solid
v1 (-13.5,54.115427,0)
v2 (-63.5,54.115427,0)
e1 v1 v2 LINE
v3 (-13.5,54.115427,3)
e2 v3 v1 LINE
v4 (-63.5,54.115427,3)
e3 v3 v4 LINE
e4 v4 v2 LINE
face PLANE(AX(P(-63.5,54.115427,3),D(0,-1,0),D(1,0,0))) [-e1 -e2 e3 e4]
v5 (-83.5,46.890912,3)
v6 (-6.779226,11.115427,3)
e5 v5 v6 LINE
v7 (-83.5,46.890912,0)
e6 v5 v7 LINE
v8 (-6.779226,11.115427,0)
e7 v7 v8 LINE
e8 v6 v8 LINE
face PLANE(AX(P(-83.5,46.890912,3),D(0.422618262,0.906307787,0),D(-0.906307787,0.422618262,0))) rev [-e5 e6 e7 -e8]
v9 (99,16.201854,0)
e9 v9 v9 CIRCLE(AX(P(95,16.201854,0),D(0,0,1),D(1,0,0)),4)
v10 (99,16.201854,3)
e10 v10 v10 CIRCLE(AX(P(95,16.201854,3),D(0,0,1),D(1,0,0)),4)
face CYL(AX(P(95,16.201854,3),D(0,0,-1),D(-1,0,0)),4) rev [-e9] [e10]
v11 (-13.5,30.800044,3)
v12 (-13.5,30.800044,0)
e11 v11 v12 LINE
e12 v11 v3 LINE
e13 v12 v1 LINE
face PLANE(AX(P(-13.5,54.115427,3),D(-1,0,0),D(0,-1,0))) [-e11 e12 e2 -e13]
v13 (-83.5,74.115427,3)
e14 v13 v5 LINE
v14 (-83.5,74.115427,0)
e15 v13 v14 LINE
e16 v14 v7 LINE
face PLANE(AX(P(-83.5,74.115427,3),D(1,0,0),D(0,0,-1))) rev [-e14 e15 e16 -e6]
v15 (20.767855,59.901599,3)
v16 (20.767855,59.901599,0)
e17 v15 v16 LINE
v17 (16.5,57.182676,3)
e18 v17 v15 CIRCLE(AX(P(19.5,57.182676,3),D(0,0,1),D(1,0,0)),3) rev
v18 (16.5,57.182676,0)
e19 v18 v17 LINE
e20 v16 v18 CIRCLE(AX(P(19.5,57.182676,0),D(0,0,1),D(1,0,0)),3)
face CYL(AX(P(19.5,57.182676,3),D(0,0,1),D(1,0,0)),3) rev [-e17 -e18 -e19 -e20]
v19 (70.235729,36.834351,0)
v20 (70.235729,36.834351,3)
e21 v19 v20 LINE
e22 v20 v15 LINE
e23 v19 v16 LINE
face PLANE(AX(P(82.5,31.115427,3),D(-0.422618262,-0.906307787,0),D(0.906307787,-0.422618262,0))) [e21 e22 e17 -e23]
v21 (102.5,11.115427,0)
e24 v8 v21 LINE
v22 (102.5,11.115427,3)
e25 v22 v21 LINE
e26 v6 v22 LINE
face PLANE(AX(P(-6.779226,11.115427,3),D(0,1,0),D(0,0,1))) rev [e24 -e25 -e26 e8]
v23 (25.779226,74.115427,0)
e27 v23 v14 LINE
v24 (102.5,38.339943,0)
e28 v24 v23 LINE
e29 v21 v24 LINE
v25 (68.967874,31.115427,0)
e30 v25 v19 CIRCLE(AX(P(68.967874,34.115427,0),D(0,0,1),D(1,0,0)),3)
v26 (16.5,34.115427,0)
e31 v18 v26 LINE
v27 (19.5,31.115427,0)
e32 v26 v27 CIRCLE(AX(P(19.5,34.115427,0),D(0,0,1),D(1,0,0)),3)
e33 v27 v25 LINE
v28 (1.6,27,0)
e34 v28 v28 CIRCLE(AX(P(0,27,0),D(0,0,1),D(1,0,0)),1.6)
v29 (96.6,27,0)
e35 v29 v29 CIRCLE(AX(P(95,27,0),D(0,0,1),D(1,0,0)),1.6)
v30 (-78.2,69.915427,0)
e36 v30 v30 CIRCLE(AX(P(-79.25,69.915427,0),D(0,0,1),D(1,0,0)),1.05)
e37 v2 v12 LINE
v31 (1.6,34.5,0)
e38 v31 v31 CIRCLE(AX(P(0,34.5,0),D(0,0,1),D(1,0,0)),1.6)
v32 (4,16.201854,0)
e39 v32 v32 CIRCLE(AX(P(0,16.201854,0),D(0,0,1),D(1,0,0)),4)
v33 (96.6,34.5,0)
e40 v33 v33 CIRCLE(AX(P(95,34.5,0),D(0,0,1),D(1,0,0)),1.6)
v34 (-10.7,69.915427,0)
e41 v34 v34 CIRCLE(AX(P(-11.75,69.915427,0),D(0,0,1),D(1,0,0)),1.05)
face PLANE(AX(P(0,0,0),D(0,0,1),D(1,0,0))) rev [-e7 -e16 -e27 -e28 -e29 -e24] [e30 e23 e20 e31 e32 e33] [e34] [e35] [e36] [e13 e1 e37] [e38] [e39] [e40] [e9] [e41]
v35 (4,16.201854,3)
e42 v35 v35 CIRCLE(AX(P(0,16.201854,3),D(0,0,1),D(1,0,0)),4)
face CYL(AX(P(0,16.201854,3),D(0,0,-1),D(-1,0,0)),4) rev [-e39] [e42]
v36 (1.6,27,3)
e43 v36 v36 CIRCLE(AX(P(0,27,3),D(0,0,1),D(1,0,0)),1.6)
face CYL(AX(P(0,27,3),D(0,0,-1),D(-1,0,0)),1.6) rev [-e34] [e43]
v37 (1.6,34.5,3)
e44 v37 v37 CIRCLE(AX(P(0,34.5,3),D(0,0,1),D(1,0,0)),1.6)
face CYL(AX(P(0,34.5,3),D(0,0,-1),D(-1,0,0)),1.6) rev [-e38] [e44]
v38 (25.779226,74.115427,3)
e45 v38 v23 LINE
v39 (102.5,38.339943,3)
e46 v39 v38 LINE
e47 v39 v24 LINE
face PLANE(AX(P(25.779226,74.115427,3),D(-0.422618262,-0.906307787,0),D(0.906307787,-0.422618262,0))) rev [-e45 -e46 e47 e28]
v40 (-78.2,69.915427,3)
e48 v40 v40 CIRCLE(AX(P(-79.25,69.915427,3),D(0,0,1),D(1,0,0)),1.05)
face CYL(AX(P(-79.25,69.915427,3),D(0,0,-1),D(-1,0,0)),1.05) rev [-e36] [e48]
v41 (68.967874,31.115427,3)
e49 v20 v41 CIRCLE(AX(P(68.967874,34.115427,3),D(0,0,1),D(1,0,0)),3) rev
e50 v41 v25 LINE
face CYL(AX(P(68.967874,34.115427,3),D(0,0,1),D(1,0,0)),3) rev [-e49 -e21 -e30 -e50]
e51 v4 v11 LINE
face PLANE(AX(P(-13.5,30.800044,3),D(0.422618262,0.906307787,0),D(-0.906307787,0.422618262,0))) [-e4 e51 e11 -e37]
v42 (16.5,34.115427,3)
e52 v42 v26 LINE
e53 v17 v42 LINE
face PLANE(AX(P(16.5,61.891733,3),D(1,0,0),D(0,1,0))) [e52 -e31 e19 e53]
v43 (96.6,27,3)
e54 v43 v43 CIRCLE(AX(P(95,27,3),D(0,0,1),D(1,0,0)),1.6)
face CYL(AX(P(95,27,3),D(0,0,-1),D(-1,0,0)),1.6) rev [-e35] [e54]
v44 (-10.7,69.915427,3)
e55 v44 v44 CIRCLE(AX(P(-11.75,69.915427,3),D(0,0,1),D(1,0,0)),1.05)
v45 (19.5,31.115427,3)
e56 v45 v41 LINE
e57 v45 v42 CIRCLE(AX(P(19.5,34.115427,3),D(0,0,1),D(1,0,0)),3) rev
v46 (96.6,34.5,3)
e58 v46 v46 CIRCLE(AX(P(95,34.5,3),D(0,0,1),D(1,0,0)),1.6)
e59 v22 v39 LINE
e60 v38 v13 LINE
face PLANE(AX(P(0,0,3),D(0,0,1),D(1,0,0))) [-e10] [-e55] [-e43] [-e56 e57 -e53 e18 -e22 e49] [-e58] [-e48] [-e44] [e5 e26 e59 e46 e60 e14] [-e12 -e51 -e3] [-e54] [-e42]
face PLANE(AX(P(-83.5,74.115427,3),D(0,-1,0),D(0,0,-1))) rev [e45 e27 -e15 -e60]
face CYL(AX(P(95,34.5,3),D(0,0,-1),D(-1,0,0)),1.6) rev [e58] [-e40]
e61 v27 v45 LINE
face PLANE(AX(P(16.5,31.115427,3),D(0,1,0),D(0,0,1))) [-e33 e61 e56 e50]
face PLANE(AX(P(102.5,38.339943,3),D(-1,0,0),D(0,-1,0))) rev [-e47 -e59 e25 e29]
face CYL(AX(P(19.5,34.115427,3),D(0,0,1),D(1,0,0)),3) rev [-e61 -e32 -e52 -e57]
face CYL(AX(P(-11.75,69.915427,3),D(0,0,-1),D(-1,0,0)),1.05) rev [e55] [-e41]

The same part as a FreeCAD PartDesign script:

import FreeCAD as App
import Part
import Sketcher

V = App.Vector
Q = App.Units.Quantity


def edges_at(feature, points):
    """Names of the edges that pass closest to the given points."""
    edges = feature.Shape.Edges
    near = lambda p: min(range(len(edges)), key=lambda i: edges[i].distToShape(Part.Vertex(*p))[0])
    return sorted({f"Edge{near(p) + 1}" for p in points})


def add_polygon(sketch, points):
    """Adds a closed chain of lines whose ends are joined by coincident constraints."""
    first, n = sketch.GeometryCount, len(points)
    for a, b in zip(points, points[1:] + points[:1]):
        sketch.addGeometry(Part.LineSegment(App.Vector(*a, 0), App.Vector(*b, 0)), False)
    for i in range(n):
        sketch.addConstraint(Sketcher.Constraint("Coincident", first + i, 2, first + (i + 1) % n, 1))

doc = App.newDocument("Part")
body = doc.addObject("PartDesign::Body", "Body")

sketch1 = body.newObject("Sketcher::SketchObject", "Sketch")
sketch1.AttachmentSupport = (doc.getObject("XY_Plane"), [""])
sketch1.MapMode = "FlatFace"
add_polygon(sketch1, [(25.8, 74.1), (-83.5, 74.1), (-83.5, 46.9), (-6.8, 11.1), (102.5, 11.1), (102.5, 38.3)])
sketch1.addGeometry(Part.Circle(V(95, 16.2, 0), V(0, 0, 1), 4), False)
sketch1.addGeometry(Part.Circle(V(95, 27, 0), V(0, 0, 1), 1.6), False)
sketch1.addGeometry(Part.Circle(V(95, 34.5, 0), V(0, 0, 1), 1.6), False)
sketch1.addGeometry(Part.Circle(V(0, 16.2, 0), V(0, 0, 1), 4), False)
sketch1.addGeometry(Part.Circle(V(0, 27, 0), V(0, 0, 1), 1.6), False)
sketch1.addGeometry(Part.Circle(V(0, 34.5, 0), V(0, 0, 1), 1.6), False)
add_polygon(sketch1, [(16.5, 61.9), (82.5, 31.1), (16.5, 31.1)])
add_polygon(sketch1, [(-63.5, 54.1), (-13.5, 54.1), (-13.5, 30.8)])
sketch1.addGeometry(Part.Circle(V(-11.8, 69.9, 0), V(0, 0, 1), 1.1), False)
sketch1.addGeometry(Part.Circle(V(-79.2, 69.9, 0), V(0, 0, 1), 1.1), False)
sketch1.addConstraint([
    Sketcher.Constraint("Horizontal", 0),
    Sketcher.Constraint("Vertical", 1),
    Sketcher.Constraint("Horizontal", 3),
    Sketcher.Constraint("Vertical", 4),
    Sketcher.Constraint("Horizontal", 13),
    Sketcher.Constraint("Vertical", 14),
    Sketcher.Constraint("Horizontal", 15),
    Sketcher.Constraint("Vertical", 16),
    Sketcher.Constraint("Equal", 7, 8),
    Sketcher.Constraint("Equal", 6, 9),
    Sketcher.Constraint("Equal", 8, 10),
    Sketcher.Constraint("Equal", 10, 11),
    Sketcher.Constraint("Equal", 18, 19),
    Sketcher.Constraint("PointOnObject", 9, 3, -2),
    Sketcher.Constraint("PointOnObject", 10, 3, -2),
    Sketcher.Constraint("PointOnObject", 11, 3, -2),
    Sketcher.Constraint("Parallel", 2, 5),
    Sketcher.Constraint("Parallel", 5, 12),
    Sketcher.Constraint("Parallel", 12, 17),
    Sketcher.Constraint("Horizontal", 6, 3, 9, 3),
    Sketcher.Constraint("Horizontal", 7, 3, 10, 3),
    Sketcher.Constraint("Horizontal", 8, 3, 11, 3),
    Sketcher.Constraint("Horizontal", 18, 3, 19, 3),
    Sketcher.Constraint("Vertical", 6, 3, 7, 3),
    Sketcher.Constraint("Vertical", 7, 3, 8, 3),
    Sketcher.Constraint("Equal", 0, 3),
    Sketcher.Constraint("Diameter", 6, 8.0),
    Sketcher.Constraint("Diameter", 7, 3.2),
    Sketcher.Constraint("Diameter", 18, 2.1),
    Sketcher.Constraint("DistanceX", 13, 2, 13, 1, 66.0),
    Sketcher.Constraint("DistanceX", 15, 1, 15, 2, 50.0),
    Sketcher.Constraint("Angle", 2, Q("-25 deg")),
    Sketcher.Constraint("DistanceX", -1, 1, 6, 3, 95.0),
    Sketcher.Constraint("DistanceY", -1, 1, 7, 3, 27.0),
    Sketcher.Constraint("DistanceY", 2, 2, 5, 2, 63.0),
    Sketcher.Constraint("DistanceX", 12, 2, 4, 2, 20.0),
    Sketcher.Constraint("DistanceY", 3, 2, 12, 2, 20.0),
    Sketcher.Constraint("DistanceX", 15, 2, 14, 2, 30.0),
    Sketcher.Constraint("DistanceY", 13, 2, 15, 2, 23.0),
    Sketcher.Constraint("DistanceX", 1, 2, 17, 2, 20.0),
    Sketcher.Constraint("DistanceY", -1, 1, 8, 3, 34.5),
    Sketcher.Constraint("DistanceX", 0, 2, -1, 1, 83.5),
    Sketcher.Constraint("DistanceX", 19, 3, 18, 3, 67.5),
    Sketcher.Constraint("DistanceY", 19, 3, 0, 2, 4.2),
    Sketcher.Constraint("DistanceX", 18, 3, -1, 1, 11.75),
    Sketcher.Constraint("DistanceX", 0, 2, 0, 1, 109.279226),
    Sketcher.Constraint("DistanceY", -1, 1, 1, 2, 46.890912),
    Sketcher.Constraint("DistanceY", 6, 3, 4, 2, 22.138089),
])
pad1 = body.newObject("PartDesign::Pad", "Pad")
pad1.Profile = sketch1
pad1.Length = 3
doc.recompute()

fillet = body.newObject("PartDesign::Fillet", "Fillet")
fillet.Base = (pad1, edges_at(pad1, [(82.5, 31.115, 1.5), (16.5, 61.892, 1.5), (16.5, 31.115, 1.5)]))
fillet.Radius = 3

doc.recompute()
